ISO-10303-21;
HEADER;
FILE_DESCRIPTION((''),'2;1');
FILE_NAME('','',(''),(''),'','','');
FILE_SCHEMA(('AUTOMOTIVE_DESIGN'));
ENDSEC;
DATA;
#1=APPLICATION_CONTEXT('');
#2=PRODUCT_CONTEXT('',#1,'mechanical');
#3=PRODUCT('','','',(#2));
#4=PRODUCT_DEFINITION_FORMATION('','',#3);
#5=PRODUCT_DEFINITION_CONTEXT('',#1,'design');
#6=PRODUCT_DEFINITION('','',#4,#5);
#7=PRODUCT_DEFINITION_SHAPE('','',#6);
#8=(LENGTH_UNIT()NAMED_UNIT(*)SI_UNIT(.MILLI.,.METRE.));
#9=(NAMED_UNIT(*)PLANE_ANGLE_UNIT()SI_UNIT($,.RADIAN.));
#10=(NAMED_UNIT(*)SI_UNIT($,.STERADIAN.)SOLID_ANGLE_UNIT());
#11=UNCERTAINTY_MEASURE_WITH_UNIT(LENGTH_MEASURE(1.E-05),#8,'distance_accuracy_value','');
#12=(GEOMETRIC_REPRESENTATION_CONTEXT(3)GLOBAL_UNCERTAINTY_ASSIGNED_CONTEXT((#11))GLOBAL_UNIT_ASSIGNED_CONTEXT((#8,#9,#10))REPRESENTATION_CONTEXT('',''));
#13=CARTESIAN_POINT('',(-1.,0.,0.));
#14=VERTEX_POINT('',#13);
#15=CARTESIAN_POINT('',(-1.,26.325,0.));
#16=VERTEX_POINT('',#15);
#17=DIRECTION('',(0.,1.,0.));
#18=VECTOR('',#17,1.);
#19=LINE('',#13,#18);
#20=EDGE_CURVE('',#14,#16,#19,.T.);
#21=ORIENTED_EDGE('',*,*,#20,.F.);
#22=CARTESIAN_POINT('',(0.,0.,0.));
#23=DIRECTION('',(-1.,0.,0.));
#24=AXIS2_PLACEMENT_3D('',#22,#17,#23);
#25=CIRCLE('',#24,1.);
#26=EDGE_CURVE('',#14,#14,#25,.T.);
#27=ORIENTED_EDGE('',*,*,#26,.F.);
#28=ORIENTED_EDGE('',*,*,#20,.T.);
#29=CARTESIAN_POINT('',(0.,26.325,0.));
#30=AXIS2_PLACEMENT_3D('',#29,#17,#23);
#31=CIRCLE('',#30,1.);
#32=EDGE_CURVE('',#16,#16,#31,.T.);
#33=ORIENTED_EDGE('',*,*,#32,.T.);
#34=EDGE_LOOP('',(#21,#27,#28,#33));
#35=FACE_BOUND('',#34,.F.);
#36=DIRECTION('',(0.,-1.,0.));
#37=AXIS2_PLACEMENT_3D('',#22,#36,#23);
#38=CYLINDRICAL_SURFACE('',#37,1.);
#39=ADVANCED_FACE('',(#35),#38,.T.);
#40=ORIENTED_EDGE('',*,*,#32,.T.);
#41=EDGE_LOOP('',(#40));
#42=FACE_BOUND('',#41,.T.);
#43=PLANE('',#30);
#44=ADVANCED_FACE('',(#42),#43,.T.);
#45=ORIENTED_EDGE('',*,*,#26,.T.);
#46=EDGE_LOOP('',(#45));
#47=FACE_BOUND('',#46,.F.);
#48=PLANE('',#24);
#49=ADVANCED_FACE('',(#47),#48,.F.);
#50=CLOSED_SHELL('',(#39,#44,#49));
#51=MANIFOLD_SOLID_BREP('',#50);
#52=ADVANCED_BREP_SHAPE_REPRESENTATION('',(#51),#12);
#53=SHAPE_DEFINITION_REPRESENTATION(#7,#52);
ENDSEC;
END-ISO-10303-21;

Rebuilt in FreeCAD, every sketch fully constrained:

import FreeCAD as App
import Part
import Sketcher

V = App.Vector
Q = App.Units.Quantity

doc = App.newDocument("Part")
params = doc.addObject("Spreadsheet::Sheet", "Params")
for row, (alias, value) in enumerate([
    ("sketch1_diameter", "2 mm"),
    ("pad1_length", "26.325 mm"),
], start=1):
    params.set(f"A{row}", alias)
    params.set(f"B{row}", "=" + value)
    params.setAlias(f"B{row}", alias)

body = doc.addObject("PartDesign::Body", "Body")

sketch1 = body.newObject("Sketcher::SketchObject", "Sketch")
sketch1.AttachmentSupport = (doc.getObject("XZ_Plane"), [""])
sketch1.MapMode = "FlatFace"
sketch1.addGeometry(Part.Circle(V(0, 0, 0), V(0, 0, 1), 1), False)
sketch1.addConstraint([
    Sketcher.Constraint("Coincident", 0, 3, -1, 1),
    Sketcher.Constraint("Diameter", 0, Q("2 mm")),
])
sketch1.setExpression("Constraints[1]", "Params.sketch1_diameter")
pad1 = body.newObject("PartDesign::Pad", "Pad")
pad1.Profile = sketch1
pad1.setExpression("Length", "Params.pad1_length")
pad1.Reversed = True

doc.recompute()
